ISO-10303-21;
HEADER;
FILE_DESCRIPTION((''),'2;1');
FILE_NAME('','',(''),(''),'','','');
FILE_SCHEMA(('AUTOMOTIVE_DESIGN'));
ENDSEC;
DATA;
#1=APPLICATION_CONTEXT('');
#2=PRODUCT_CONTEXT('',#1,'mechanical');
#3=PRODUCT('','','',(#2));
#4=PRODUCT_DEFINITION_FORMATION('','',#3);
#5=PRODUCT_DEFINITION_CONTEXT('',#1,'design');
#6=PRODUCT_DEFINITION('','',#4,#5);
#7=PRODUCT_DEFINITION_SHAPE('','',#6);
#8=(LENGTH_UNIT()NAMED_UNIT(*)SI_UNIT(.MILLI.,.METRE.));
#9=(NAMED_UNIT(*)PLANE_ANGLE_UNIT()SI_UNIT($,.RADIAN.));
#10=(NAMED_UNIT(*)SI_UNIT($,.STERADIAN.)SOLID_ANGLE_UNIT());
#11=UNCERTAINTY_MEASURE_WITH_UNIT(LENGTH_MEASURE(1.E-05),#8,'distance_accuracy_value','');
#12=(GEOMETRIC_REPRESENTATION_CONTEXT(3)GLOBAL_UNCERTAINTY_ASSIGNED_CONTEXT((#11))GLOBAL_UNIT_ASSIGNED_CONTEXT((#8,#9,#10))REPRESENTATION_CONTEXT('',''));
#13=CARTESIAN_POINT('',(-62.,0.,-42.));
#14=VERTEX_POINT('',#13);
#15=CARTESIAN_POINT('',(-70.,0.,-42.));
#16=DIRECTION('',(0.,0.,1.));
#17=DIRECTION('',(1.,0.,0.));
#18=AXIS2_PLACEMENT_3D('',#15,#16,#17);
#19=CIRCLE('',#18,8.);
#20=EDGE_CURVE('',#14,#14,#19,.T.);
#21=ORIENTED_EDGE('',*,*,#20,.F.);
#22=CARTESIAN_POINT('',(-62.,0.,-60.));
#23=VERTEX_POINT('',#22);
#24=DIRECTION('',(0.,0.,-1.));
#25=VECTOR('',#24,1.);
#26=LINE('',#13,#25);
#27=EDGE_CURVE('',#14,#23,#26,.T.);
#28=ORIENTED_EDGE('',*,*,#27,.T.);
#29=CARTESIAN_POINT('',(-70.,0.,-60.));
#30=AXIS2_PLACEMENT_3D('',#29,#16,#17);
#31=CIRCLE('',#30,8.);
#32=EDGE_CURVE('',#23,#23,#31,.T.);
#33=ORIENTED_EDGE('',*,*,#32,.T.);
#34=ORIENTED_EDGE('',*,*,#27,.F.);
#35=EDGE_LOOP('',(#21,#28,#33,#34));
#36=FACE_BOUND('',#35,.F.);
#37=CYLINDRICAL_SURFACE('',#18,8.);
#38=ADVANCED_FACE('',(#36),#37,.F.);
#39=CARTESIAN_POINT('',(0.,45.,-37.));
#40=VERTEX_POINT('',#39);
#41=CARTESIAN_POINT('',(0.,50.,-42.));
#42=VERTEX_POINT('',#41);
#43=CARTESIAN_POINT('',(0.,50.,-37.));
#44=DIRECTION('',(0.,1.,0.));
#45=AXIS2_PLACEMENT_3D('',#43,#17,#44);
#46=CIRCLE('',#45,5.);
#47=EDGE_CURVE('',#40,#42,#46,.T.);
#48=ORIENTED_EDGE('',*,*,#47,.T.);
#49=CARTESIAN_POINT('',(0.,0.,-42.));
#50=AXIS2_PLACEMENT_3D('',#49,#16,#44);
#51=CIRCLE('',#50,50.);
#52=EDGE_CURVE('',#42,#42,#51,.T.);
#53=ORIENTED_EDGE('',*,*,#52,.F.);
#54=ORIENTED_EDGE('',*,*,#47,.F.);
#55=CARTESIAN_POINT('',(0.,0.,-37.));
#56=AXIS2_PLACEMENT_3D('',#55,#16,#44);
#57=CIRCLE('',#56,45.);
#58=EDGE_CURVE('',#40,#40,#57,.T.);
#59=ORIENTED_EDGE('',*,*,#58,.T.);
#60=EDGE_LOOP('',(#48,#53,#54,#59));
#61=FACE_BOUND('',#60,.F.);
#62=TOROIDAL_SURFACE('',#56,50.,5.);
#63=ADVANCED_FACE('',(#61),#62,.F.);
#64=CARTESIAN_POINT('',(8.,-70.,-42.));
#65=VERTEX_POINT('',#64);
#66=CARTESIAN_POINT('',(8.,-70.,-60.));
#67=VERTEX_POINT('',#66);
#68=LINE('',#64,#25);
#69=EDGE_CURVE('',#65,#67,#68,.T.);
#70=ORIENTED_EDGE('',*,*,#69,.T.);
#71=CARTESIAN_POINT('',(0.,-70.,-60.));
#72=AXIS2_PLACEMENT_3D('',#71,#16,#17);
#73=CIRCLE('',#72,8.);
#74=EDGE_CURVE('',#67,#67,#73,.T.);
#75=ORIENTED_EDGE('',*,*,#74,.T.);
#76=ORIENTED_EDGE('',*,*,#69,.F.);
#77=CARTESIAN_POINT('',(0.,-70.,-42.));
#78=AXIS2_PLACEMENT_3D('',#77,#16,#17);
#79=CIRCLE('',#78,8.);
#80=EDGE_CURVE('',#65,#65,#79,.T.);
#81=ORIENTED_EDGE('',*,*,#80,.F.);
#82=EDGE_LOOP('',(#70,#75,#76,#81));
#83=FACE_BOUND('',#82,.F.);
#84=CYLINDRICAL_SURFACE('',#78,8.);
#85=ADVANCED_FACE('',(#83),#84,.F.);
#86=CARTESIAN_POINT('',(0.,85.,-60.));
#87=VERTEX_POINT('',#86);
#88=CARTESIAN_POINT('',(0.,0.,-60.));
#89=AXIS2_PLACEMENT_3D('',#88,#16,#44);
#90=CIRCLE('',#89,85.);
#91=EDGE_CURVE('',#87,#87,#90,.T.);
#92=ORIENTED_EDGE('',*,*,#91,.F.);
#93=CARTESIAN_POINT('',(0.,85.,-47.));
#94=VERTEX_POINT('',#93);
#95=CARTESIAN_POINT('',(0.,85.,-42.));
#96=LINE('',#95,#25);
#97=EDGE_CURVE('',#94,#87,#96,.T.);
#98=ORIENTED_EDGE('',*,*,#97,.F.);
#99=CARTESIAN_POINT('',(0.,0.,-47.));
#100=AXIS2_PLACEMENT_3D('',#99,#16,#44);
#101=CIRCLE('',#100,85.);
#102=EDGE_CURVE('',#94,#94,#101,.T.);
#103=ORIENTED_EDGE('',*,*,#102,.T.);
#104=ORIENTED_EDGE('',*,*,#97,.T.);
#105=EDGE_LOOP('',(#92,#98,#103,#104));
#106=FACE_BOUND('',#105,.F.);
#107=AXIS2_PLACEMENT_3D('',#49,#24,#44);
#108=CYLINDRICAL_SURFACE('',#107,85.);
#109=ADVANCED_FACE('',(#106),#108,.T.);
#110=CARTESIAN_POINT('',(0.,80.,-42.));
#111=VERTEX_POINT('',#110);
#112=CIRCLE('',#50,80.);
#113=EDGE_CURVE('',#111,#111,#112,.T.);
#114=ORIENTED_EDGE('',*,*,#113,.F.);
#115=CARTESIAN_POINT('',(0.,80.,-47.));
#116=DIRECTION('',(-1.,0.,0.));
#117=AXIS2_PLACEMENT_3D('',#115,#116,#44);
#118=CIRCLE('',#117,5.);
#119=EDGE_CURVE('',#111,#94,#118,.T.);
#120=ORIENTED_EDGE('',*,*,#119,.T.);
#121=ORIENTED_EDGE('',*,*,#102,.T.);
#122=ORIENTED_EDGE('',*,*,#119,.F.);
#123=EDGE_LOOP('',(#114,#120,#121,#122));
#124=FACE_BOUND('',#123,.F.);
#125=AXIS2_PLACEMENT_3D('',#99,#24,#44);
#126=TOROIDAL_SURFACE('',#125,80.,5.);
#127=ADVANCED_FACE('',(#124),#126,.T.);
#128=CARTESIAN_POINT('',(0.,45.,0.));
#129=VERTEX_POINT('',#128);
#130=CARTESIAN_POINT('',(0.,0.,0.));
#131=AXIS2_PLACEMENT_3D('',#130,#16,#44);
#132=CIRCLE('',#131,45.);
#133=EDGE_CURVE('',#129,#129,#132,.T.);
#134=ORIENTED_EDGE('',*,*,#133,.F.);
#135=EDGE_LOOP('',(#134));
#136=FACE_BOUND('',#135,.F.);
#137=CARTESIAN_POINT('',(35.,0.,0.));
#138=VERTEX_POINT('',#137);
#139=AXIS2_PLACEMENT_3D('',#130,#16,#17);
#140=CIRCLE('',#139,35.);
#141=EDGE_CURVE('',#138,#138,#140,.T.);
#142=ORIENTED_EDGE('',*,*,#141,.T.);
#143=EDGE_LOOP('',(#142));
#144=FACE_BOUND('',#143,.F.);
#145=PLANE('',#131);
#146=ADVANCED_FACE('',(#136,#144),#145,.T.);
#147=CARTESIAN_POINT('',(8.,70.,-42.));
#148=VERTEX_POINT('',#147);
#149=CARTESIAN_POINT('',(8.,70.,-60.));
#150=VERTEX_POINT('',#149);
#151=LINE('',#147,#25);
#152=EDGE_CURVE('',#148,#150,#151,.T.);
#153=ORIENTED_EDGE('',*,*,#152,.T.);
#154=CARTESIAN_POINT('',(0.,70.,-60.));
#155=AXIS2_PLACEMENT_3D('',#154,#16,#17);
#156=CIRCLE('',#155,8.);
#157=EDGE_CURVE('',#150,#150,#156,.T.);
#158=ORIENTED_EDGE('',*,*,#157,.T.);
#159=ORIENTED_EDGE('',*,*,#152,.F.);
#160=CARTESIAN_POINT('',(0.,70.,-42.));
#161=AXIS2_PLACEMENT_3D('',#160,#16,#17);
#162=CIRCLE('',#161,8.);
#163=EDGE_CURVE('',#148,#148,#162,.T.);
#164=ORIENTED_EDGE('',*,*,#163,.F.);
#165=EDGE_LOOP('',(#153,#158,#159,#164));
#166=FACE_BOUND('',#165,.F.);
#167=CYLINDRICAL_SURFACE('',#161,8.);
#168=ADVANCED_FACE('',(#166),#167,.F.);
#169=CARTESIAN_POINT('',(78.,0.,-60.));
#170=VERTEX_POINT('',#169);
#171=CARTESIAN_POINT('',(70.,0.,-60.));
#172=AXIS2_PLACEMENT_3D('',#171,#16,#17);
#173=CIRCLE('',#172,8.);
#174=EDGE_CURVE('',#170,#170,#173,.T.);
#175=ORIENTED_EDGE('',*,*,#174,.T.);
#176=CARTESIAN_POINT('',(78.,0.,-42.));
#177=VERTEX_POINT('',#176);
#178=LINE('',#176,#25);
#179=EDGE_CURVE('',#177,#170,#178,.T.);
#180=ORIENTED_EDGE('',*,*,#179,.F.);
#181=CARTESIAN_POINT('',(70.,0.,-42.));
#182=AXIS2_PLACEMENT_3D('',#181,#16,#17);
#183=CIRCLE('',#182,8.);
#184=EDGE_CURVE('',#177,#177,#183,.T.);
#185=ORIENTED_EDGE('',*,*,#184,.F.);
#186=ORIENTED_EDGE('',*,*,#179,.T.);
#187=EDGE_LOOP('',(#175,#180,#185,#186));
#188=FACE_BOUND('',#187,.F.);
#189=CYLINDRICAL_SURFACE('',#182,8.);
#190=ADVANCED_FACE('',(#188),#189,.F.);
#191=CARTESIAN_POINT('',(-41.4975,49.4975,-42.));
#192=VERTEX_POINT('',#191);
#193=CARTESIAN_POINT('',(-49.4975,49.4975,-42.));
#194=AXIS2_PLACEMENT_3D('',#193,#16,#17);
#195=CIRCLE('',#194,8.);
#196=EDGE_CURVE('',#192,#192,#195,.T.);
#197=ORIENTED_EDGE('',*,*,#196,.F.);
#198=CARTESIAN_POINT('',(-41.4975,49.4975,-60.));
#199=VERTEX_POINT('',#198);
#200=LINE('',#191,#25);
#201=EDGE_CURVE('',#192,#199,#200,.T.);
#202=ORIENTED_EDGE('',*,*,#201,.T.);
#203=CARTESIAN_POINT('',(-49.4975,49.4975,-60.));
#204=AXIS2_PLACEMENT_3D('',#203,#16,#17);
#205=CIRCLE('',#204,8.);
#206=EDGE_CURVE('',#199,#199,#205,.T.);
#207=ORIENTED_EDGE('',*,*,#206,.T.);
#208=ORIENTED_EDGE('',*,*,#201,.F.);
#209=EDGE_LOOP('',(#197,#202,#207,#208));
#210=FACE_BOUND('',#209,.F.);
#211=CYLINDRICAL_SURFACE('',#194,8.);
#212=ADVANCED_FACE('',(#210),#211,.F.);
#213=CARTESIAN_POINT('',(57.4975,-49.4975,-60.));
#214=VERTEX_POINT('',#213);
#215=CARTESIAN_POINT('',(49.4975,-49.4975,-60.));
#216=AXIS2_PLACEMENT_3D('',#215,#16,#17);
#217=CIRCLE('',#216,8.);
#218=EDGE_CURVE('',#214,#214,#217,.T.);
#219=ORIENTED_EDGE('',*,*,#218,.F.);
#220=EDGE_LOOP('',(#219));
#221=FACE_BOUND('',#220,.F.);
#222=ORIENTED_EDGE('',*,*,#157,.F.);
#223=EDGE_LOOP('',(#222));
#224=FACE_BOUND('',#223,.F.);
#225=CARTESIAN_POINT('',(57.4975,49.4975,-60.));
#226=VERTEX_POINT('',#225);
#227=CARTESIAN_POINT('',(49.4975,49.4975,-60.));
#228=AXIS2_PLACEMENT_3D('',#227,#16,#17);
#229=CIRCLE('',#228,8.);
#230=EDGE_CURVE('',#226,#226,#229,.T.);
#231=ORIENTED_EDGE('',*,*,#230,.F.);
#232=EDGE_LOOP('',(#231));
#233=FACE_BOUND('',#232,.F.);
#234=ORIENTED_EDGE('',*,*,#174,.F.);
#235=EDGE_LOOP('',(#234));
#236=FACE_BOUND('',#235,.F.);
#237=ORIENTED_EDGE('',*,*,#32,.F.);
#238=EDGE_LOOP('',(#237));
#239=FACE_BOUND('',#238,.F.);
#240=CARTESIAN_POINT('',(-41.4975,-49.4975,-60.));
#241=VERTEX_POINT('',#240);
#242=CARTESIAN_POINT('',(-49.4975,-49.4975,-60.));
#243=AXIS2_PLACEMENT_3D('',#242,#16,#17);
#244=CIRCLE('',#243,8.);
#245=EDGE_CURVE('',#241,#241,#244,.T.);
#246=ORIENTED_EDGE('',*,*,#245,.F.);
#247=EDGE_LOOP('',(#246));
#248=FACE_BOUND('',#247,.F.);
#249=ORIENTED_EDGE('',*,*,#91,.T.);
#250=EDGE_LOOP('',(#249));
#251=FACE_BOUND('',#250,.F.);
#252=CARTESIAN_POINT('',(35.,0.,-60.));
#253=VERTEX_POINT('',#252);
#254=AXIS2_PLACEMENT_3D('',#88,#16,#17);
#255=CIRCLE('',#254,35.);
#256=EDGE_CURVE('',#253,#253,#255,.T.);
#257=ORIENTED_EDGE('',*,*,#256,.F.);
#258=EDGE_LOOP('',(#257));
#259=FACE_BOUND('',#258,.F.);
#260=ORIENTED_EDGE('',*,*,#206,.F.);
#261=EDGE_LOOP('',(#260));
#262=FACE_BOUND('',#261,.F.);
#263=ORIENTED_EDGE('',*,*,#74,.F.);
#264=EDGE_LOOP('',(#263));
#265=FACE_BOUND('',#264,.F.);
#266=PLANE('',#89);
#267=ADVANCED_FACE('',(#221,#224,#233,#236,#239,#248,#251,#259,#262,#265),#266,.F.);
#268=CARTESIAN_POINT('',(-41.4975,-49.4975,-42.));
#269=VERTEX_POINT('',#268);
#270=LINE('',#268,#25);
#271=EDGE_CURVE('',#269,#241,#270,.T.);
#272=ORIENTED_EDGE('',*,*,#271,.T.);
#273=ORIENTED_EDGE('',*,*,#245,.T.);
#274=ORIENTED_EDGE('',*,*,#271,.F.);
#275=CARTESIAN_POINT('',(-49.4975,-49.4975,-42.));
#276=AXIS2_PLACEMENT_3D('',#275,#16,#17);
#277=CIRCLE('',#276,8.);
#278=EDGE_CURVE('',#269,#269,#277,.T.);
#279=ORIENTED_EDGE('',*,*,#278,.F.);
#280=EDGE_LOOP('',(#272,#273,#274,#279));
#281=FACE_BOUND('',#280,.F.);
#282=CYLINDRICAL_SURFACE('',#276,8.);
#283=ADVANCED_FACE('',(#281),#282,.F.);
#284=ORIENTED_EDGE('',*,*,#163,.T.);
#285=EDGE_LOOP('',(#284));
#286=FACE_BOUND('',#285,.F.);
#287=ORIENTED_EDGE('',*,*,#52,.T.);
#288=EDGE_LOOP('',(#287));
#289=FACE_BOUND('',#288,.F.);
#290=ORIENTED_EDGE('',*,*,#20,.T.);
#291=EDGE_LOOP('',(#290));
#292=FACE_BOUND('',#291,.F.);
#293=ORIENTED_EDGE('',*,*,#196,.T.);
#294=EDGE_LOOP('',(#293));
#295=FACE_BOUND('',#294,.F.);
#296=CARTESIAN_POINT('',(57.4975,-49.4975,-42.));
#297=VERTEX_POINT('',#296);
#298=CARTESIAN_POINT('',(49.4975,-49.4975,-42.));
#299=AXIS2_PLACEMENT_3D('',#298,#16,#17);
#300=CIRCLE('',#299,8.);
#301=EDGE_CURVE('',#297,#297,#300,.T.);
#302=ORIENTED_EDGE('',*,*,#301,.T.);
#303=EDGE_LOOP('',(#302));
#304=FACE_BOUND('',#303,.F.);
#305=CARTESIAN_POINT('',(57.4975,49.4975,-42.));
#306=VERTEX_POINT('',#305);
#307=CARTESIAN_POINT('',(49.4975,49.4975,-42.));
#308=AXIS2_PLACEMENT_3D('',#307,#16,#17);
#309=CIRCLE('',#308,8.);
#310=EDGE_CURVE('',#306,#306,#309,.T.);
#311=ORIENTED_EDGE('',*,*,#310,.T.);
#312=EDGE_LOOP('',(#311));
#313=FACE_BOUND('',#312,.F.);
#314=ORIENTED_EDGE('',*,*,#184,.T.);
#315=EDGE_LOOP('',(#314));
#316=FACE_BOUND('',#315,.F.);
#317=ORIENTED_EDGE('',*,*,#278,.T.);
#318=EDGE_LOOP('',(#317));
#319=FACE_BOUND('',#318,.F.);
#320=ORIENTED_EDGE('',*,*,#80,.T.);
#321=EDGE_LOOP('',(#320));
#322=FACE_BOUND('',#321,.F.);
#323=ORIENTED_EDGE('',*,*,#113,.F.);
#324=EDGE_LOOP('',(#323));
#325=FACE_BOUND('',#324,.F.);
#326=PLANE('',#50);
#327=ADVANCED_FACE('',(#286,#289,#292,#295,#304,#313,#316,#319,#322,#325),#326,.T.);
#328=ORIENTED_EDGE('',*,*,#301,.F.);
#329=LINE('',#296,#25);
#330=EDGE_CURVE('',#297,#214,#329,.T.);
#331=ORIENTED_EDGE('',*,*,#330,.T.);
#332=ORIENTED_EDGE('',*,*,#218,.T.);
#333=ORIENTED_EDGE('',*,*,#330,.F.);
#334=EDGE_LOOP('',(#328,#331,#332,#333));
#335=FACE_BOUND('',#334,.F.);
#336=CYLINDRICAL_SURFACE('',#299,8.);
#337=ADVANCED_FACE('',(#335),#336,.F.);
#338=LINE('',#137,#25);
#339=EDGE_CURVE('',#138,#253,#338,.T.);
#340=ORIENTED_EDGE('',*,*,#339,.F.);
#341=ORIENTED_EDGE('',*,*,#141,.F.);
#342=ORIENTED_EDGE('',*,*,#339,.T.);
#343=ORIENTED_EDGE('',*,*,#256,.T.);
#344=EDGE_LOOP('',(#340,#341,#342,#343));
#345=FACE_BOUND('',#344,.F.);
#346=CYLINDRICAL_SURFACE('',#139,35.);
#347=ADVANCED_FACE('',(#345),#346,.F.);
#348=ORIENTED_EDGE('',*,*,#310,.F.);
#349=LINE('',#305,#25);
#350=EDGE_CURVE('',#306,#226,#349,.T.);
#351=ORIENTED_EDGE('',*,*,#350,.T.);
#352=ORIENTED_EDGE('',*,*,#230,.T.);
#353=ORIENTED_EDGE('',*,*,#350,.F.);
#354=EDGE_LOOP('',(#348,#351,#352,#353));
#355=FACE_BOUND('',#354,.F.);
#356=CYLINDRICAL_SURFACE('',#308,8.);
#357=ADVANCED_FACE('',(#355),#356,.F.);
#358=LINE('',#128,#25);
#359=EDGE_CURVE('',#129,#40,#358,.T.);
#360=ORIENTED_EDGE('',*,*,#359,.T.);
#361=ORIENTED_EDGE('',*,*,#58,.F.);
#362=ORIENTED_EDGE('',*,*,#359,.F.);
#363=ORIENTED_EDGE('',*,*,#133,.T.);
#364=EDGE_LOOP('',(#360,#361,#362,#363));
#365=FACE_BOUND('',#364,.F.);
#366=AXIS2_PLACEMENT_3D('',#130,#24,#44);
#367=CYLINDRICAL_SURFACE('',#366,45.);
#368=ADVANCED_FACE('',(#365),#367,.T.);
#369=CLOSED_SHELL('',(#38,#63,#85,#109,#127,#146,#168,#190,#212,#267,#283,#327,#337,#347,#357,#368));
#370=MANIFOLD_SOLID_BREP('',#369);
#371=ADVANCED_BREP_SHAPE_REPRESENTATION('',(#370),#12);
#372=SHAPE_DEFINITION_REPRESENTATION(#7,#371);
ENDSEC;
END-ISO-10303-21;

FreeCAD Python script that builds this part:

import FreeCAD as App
import Part
import Sketcher
Q = App.Units.Quantity


def edges_at(feature, points):
    """Names of the edges that pass closest to the given points."""
    edges = feature.Shape.Edges
    near = lambda p: min(range(len(edges)), key=lambda i: edges[i].distToShape(Part.Vertex(*p))[0])
    return sorted({f"Edge{near(p) + 1}" for p in points})


def add_polygon(sketch, points):
    """Adds a closed chain of lines whose ends are joined by coincident constraints."""
    first, n = sketch.GeometryCount, len(points)
    for a, b in zip(points, points[1:] + points[:1]):
        sketch.addGeometry(Part.LineSegment(App.Vector(*a, 0), App.Vector(*b, 0)), False)
    for i in range(n):
        sketch.addConstraint(Sketcher.Constraint("Coincident", first + i, 2, first + (i + 1) % n, 1))

doc = App.newDocument("Part")
body = doc.addObject("PartDesign::Body", "Body")

sketch1 = body.newObject("Sketcher::SketchObject", "Sketch")
sketch1.AttachmentSupport = (doc.getObject("YZ_Plane"), [""])
sketch1.MapMode = "FlatFace"
add_polygon(sketch1, [(45, 0), (0, 0), (0, -60), (85, -60), (85, -42), (45, -42)])
sketch1.addConstraint(Sketcher.Constraint("Horizontal", 0))
sketch1.addConstraint(Sketcher.Constraint("Vertical", 1))
sketch1.addConstraint(Sketcher.Constraint("Horizontal", 2))
sketch1.addConstraint(Sketcher.Constraint("Vertical", 3))
sketch1.addConstraint(Sketcher.Constraint("Horizontal", 4))
sketch1.addConstraint(Sketcher.Constraint("Vertical", 5))
sketch1.addConstraint(Sketcher.Constraint("Coincident", 0, 2, -1, 1))
sketch1.addConstraint(Sketcher.Constraint("DistanceX", 2, 1, 2, 2, Q("85 mm")))
sketch1.addConstraint(Sketcher.Constraint("DistanceX", 4, 2, 4, 1, Q("40 mm")))
sketch1.addConstraint(Sketcher.Constraint("DistanceY", 1, 2, 1, 1, Q("60 mm")))
sketch1.addConstraint(Sketcher.Constraint("DistanceY", 5, 1, 5, 2, Q("42 mm")))
revolution = body.newObject("PartDesign::Revolution", "Revolution")
revolution.Profile = sketch1
revolution.ReferenceAxis = (sketch1, ["V_Axis"])
revolution.Angle = 360

sketch2 = body.newObject("Sketcher::SketchObject", "Sketch001")
sketch2.AttachmentSupport = (doc.getObject("XY_Plane"), [""])
sketch2.MapMode = "FlatFace"
sketch2.AttachmentOffset = App.Placement(App.Vector(0, 0, -42), App.Rotation())
sketch2.addGeometry(Part.Circle(App.Vector(0, 70, 0), App.Vector(0, 0, 1), 8), False)
sketch2.addGeometry(Part.Circle(App.Vector(-49, 49, 0), App.Vector(0, 0, 1), 8), False)
sketch2.addGeometry(Part.Circle(App.Vector(-70, 0, 0), App.Vector(0, 0, 1), 8), False)
sketch2.addGeometry(Part.Circle(App.Vector(-49, -49, 0), App.Vector(0, 0, 1), 8), False)
sketch2.addGeometry(Part.Circle(App.Vector(0, -70, 0), App.Vector(0, 0, 1), 8), False)
sketch2.addGeometry(Part.Circle(App.Vector(49, -49, 0), App.Vector(0, 0, 1), 8), False)
sketch2.addGeometry(Part.Circle(App.Vector(70, 0, 0), App.Vector(0, 0, 1), 8), False)
sketch2.addGeometry(Part.Circle(App.Vector(49, 49, 0), App.Vector(0, 0, 1), 8), False)
sketch2.addConstraint(Sketcher.Constraint("Equal", 0, 1))
sketch2.addConstraint(Sketcher.Constraint("Equal", 1, 2))
sketch2.addConstraint(Sketcher.Constraint("Equal", 2, 3))
sketch2.addConstraint(Sketcher.Constraint("Equal", 3, 4))
sketch2.addConstraint(Sketcher.Constraint("Equal", 4, 5))
sketch2.addConstraint(Sketcher.Constraint("Equal", 5, 6))
sketch2.addConstraint(Sketcher.Constraint("Equal", 6, 7))
sketch2.addConstraint(Sketcher.Constraint("Symmetric", 0, 3, 4, 3, -1, 1))
sketch2.addConstraint(Sketcher.Constraint("Symmetric", 1, 3, 5, 3, -1, 1))
sketch2.addConstraint(Sketcher.Constraint("Symmetric", 2, 3, 6, 3, -1, 1))
sketch2.addConstraint(Sketcher.Constraint("Symmetric", 3, 3, 7, 3, -1, 1))
sketch2.addConstraint(Sketcher.Constraint("Symmetric", 3, 3, 5, 3, -2))
sketch2.addConstraint(Sketcher.Constraint("PointOnObject", 0, 3, -2))
sketch2.addConstraint(Sketcher.Constraint("PointOnObject", 2, 3, -1))
sketch2.addConstraint(Sketcher.Constraint("Diameter", 0, Q("16 mm")))
sketch2.addConstraint(Sketcher.Constraint("DistanceY", -1, 1, 0, 3, Q("70 mm")))
sketch2.addConstraint(Sketcher.Constraint("DistanceX", 2, 3, -1, 1, Q("70 mm")))
sketch2.addConstraint(Sketcher.Constraint("DistanceY", 3, 3, 1, 3, Q("98.995 mm")))
sketch2.addConstraint(Sketcher.Constraint("DistanceX", 3, 3, 5, 3, Q("98.995 mm")))
pocket1 = body.newObject("PartDesign::Pocket", "Pocket")
pocket1.Profile = sketch2
pocket1.Type = "UpToFirst"

sketch3 = body.newObject("Sketcher::SketchObject", "Sketch002")
sketch3.AttachmentSupport = (doc.getObject("XY_Plane"), [""])
sketch3.MapMode = "FlatFace"
sketch3.addGeometry(Part.Circle(App.Vector(0, 0, 0), App.Vector(0, 0, 1), 35), False)
sketch3.addConstraint(Sketcher.Constraint("Coincident", 0, 3, -1, 1))
sketch3.addConstraint(Sketcher.Constraint("Diameter", 0, Q("70 mm")))
pocket2 = body.newObject("PartDesign::Pocket", "Pocket001")
pocket2.Profile = sketch3
pocket2.Type = "UpToFirst"
doc.recompute()

fillet = body.newObject("PartDesign::Fillet", "Fillet")
fillet.Base = (pocket2, edges_at(pocket2, [(0, -45, -42), (0, -85, -42)]))
fillet.Radius = 5

doc.recompute()
